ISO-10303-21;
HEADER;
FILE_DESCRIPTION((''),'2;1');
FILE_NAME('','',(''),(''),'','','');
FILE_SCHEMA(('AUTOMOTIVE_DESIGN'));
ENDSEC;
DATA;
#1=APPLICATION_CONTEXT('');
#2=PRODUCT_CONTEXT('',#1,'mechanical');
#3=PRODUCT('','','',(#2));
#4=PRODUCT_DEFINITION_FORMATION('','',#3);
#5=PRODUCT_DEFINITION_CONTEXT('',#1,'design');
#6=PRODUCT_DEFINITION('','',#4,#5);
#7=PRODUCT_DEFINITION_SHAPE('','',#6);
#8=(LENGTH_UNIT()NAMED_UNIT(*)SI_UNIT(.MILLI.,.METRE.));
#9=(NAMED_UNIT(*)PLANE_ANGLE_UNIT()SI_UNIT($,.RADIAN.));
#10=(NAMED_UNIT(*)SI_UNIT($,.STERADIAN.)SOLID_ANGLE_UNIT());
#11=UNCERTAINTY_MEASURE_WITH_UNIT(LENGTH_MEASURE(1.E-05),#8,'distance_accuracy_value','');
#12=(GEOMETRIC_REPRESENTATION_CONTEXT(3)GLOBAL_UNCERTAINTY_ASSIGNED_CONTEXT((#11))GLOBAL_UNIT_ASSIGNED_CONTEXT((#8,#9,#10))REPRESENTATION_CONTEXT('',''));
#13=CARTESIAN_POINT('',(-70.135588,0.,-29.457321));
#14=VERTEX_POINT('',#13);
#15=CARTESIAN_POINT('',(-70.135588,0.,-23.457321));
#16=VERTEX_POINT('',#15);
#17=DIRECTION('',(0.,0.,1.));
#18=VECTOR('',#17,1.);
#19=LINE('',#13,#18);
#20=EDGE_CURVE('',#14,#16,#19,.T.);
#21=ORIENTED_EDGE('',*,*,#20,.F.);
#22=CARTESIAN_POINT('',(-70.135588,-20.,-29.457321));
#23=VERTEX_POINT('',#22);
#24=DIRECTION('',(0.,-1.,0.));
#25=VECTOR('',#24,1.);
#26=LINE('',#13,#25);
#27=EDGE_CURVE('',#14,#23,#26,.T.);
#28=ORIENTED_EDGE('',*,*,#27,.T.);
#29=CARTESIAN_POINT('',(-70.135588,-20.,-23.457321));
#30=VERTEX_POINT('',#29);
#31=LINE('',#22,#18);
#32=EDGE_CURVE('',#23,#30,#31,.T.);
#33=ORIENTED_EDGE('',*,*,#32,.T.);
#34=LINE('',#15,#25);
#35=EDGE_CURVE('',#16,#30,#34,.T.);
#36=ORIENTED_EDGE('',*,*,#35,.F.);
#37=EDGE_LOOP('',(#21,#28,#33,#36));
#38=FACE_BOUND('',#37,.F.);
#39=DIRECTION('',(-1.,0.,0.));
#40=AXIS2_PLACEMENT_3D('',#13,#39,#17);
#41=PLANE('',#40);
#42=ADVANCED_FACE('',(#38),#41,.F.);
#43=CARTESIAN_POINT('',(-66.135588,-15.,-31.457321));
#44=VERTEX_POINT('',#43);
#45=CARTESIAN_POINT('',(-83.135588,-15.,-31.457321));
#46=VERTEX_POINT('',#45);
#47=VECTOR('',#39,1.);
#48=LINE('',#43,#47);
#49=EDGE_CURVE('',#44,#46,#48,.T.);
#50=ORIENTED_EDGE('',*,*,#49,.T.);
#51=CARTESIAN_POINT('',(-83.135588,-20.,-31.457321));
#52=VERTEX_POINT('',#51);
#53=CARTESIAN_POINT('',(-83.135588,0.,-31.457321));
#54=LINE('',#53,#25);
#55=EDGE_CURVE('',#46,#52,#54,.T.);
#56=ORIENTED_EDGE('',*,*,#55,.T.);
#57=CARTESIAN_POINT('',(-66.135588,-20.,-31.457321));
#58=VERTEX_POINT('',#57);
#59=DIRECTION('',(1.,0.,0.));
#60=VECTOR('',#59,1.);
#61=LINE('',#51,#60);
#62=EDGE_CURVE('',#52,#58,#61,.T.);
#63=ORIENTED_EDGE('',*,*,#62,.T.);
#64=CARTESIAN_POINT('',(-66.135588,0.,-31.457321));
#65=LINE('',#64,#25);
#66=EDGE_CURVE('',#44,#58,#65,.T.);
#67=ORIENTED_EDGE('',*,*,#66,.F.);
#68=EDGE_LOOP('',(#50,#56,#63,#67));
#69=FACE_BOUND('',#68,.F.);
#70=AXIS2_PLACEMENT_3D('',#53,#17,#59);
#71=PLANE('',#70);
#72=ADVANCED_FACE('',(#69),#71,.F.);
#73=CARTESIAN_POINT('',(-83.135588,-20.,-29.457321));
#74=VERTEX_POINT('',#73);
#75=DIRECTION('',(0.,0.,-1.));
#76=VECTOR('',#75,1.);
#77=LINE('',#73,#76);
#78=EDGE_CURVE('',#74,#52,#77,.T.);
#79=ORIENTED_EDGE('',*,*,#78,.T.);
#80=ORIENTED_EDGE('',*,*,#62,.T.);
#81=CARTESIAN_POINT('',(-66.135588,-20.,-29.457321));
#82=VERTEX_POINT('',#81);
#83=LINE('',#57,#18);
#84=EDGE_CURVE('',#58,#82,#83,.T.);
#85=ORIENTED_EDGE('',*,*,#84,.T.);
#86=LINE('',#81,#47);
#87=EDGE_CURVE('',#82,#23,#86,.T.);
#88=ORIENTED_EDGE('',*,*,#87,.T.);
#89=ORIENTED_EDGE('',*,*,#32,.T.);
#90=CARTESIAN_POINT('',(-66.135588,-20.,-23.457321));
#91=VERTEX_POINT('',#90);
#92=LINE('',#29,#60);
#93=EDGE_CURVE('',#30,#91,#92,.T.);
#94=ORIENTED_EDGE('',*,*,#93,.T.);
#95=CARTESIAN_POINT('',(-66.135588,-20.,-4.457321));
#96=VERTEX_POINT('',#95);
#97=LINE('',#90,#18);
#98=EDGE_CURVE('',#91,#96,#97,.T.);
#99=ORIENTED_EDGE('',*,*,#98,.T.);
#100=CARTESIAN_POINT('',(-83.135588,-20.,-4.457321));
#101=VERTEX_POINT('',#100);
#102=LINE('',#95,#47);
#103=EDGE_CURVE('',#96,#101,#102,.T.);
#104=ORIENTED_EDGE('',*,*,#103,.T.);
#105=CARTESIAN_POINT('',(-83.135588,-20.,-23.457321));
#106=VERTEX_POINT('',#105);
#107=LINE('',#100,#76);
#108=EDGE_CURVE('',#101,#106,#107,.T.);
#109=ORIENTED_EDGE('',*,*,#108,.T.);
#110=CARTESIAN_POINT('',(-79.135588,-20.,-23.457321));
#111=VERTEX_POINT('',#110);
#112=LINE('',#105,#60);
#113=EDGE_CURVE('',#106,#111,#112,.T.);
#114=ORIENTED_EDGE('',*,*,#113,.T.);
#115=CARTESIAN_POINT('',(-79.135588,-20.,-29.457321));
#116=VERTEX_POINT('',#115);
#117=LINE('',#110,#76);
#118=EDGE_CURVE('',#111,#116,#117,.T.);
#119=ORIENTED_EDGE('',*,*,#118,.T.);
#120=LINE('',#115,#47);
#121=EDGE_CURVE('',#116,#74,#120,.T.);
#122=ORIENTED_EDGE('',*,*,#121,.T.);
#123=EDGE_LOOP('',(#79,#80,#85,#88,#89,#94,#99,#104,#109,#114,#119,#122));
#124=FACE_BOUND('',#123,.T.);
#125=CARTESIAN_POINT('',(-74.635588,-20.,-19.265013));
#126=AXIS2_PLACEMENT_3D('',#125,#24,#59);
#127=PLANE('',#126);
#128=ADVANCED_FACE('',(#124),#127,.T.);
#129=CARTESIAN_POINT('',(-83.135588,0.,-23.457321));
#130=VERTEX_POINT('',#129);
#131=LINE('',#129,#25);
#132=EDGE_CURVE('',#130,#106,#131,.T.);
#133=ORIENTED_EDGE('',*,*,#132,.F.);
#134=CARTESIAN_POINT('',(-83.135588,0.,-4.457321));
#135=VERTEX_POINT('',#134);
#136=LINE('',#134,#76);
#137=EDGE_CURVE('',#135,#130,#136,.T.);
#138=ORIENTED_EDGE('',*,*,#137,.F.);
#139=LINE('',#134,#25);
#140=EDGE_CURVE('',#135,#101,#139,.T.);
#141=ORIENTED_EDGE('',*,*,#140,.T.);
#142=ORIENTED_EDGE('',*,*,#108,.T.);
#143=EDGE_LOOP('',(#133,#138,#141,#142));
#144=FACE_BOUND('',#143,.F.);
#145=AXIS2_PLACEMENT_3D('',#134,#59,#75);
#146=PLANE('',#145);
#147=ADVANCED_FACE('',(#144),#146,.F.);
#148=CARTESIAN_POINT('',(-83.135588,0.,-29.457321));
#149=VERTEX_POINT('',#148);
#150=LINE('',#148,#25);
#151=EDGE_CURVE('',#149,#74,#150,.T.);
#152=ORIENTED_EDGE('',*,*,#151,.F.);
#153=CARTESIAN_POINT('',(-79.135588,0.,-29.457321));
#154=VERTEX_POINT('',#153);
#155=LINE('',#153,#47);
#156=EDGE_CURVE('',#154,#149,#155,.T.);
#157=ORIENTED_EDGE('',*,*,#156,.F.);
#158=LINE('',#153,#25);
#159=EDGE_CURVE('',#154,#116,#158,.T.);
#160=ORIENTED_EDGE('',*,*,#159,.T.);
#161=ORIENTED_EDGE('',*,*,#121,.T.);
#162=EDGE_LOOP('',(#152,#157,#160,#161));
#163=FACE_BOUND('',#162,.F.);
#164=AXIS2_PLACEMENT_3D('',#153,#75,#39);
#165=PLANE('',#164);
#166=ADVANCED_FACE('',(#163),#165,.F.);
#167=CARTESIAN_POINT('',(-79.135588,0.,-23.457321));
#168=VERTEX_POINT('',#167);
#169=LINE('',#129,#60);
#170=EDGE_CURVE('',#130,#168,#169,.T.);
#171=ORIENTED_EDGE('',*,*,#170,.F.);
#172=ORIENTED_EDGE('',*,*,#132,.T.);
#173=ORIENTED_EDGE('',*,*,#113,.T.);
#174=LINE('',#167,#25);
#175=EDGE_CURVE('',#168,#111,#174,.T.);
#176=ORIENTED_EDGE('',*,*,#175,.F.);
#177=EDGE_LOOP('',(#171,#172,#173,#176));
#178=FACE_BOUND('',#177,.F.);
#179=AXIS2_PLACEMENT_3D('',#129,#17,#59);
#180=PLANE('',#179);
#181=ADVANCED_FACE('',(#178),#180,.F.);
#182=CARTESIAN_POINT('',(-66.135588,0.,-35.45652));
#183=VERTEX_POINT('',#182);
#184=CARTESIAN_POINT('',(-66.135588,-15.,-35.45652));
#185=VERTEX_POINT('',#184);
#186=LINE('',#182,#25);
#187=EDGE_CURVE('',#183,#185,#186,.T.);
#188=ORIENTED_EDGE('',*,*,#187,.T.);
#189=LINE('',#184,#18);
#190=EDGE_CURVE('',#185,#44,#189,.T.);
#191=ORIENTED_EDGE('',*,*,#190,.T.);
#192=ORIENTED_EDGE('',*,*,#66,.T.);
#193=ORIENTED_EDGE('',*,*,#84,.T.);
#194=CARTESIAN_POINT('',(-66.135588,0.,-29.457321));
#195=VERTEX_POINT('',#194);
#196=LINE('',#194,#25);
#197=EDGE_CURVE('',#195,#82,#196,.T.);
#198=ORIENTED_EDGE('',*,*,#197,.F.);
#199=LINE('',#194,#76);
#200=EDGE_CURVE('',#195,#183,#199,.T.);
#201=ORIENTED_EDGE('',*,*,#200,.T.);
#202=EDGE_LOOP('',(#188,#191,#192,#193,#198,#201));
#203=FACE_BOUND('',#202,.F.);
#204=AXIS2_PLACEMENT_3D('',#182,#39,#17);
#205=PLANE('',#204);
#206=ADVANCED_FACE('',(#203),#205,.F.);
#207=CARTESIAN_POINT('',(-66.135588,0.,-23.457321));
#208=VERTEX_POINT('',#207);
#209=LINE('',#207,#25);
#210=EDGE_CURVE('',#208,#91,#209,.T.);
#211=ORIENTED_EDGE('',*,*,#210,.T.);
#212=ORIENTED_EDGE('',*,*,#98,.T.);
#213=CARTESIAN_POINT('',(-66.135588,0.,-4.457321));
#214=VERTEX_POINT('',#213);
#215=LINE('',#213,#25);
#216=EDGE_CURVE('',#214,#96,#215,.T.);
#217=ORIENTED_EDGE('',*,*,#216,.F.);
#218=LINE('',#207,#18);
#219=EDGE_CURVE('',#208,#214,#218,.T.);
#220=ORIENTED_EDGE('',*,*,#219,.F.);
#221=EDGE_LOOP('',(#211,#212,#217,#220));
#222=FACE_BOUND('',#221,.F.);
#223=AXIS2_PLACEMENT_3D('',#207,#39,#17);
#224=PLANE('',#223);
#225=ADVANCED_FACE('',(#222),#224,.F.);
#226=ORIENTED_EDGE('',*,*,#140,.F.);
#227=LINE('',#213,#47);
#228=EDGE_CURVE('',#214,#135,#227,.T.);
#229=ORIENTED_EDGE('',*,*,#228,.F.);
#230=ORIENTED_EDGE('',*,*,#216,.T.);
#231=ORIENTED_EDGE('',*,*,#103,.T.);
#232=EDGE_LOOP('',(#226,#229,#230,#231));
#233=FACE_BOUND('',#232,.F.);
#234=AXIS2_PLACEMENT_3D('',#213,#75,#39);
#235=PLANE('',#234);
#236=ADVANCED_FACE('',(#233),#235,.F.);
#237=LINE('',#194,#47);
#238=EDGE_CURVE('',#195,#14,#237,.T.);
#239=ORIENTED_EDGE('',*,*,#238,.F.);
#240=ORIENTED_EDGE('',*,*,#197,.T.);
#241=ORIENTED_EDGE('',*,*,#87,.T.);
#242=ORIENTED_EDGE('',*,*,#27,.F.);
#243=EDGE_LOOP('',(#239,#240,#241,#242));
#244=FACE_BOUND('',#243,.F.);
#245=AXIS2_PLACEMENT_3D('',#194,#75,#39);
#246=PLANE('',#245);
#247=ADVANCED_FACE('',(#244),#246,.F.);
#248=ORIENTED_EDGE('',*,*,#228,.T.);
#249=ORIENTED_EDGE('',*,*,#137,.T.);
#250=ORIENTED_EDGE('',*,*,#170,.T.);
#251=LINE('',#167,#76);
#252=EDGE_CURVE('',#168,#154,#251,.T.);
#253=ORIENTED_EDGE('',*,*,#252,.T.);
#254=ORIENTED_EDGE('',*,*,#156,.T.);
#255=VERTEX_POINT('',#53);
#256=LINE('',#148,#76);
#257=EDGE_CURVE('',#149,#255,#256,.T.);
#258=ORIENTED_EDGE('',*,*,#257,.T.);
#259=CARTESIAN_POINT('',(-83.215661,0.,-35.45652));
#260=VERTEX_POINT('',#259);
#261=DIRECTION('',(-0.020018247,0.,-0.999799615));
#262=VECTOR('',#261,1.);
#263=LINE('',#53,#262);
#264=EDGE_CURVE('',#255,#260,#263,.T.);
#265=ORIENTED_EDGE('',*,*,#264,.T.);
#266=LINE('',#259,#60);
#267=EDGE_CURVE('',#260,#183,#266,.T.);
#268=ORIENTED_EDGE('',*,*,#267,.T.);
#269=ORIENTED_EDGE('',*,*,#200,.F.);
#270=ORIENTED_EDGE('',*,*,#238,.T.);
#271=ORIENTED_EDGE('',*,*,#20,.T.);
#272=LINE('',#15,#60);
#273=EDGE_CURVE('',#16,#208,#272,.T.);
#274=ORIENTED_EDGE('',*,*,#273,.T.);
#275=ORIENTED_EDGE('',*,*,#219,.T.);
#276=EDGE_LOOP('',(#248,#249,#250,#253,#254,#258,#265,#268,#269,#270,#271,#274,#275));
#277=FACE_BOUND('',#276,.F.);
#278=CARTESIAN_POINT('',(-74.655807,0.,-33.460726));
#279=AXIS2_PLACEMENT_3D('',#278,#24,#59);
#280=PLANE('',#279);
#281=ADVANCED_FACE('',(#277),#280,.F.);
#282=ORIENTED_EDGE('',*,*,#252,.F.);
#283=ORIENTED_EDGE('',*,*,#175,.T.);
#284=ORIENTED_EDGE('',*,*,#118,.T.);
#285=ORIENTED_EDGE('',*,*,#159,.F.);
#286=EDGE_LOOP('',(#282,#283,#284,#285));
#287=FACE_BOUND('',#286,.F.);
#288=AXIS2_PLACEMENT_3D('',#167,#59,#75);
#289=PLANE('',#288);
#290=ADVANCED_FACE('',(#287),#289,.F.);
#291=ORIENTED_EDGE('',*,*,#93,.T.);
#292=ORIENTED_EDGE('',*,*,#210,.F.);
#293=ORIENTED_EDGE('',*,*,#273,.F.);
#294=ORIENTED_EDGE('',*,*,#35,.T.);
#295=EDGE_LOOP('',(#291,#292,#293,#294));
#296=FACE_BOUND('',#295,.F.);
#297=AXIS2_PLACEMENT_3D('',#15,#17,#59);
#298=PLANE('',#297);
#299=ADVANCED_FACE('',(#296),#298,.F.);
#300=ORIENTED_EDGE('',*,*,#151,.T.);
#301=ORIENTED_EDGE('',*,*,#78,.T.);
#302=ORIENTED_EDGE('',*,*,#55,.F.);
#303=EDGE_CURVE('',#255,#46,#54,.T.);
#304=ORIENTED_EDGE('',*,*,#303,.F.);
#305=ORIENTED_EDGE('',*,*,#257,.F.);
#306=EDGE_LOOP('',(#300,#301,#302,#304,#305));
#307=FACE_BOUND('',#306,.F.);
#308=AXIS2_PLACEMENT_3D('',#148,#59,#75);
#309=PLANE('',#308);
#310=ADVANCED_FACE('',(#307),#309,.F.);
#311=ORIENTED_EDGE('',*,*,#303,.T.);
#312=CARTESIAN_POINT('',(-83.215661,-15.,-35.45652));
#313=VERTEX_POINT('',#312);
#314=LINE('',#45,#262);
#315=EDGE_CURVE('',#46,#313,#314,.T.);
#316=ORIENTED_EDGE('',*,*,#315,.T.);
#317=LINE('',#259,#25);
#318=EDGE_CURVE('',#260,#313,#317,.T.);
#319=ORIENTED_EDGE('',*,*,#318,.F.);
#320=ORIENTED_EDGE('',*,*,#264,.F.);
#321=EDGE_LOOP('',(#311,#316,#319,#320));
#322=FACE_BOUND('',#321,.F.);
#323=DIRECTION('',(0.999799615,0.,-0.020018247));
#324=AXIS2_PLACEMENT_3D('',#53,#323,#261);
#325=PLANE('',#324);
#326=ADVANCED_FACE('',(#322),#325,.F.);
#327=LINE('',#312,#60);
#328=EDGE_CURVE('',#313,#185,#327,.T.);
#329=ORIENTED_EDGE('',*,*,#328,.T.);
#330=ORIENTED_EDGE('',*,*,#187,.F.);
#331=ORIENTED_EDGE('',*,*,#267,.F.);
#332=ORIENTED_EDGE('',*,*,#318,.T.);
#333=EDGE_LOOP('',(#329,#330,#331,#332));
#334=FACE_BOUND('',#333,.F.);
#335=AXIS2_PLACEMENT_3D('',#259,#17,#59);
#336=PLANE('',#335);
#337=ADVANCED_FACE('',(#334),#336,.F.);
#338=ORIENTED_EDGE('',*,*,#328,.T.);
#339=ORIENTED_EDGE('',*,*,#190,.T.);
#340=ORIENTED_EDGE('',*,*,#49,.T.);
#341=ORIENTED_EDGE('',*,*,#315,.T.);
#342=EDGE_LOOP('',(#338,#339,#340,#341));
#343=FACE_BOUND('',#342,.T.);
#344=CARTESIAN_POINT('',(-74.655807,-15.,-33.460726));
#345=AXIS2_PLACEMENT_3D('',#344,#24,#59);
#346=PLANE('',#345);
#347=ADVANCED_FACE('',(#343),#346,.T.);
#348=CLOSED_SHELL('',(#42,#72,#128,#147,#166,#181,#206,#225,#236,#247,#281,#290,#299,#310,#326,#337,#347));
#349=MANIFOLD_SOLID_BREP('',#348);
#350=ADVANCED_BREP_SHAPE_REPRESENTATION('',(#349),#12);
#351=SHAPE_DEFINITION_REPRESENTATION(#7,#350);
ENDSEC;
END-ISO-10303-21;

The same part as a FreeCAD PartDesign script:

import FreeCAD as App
import Part
import Sketcher

V = App.Vector
Q = App.Units.Quantity

doc = App.newDocument("Part")
params = doc.addObject("Spreadsheet::Sheet", "Params")
for row, (alias, value) in enumerate([
    ("sketch1_width", "17 mm"),
    ("sketch1_width2", "4 mm"),
    ("sketch1_height", "19 mm"),
    ("sketch1_height2", "6 mm"),
    ("sketch1_height3", "2 mm"),
    ("pad1_length", "20 mm"),
    ("sketch2_width", "17 mm"),
    ("sketch2_length", "4.000001 mm"),
    ("pad2_length", "15 mm"),
], start=1):
    params.set(f"A{row}", alias)
    params.set(f"B{row}", "=" + value)
    params.setAlias(f"B{row}", alias)

body = doc.addObject("PartDesign::Body", "Body")

sketch1 = body.newObject("Sketcher::SketchObject", "Sketch")
sketch1.AttachmentSupport = (doc.getObject("XZ_Plane"), [""])
sketch1.MapMode = "FlatFace"
sketch1.addGeometry(Part.LineSegment(V(-66.1, -4.5, 0), V(-83.1, -4.5, 0)), False)
sketch1.addGeometry(Part.LineSegment(V(-83.1, -4.5, 0), V(-83.1, -23.5, 0)), False)
sketch1.addGeometry(Part.LineSegment(V(-83.1, -23.5, 0), V(-79.1, -23.5, 0)), False)
sketch1.addGeometry(Part.LineSegment(V(-79.1, -23.5, 0), V(-79.1, -29.5, 0)), False)
sketch1.addGeometry(Part.LineSegment(V(-79.1, -29.5, 0), V(-83.1, -29.5, 0)), False)
sketch1.addGeometry(Part.LineSegment(V(-83.1, -29.5, 0), V(-83.1, -31.5, 0)), False)
sketch1.addGeometry(Part.LineSegment(V(-83.1, -31.5, 0), V(-66.1, -31.5, 0)), False)
sketch1.addGeometry(Part.LineSegment(V(-66.1, -31.5, 0), V(-66.1, -29.5, 0)), False)
sketch1.addGeometry(Part.LineSegment(V(-66.1, -29.5, 0), V(-70.1, -29.5, 0)), False)
sketch1.addGeometry(Part.LineSegment(V(-70.1, -29.5, 0), V(-70.1, -23.5, 0)), False)
sketch1.addGeometry(Part.LineSegment(V(-70.1, -23.5, 0), V(-66.1, -23.5, 0)), False)
sketch1.addGeometry(Part.LineSegment(V(-66.1, -23.5, 0), V(-66.1, -4.5, 0)), False)
sketch1.addConstraint(Sketcher.Constraint("Coincident", 0, 2, 1, 1))
sketch1.addConstraint(Sketcher.Constraint("Coincident", 1, 2, 2, 1))
sketch1.addConstraint(Sketcher.Constraint("Coincident", 2, 2, 3, 1))
sketch1.addConstraint(Sketcher.Constraint("Coincident", 3, 2, 4, 1))
sketch1.addConstraint(Sketcher.Constraint("Coincident", 4, 2, 5, 1))
sketch1.addConstraint(Sketcher.Constraint("Coincident", 5, 2, 6, 1))
sketch1.addConstraint(Sketcher.Constraint("Coincident", 6, 2, 7, 1))
sketch1.addConstraint(Sketcher.Constraint("Coincident", 7, 2, 8, 1))
sketch1.addConstraint(Sketcher.Constraint("Coincident", 8, 2, 9, 1))
sketch1.addConstraint(Sketcher.Constraint("Coincident", 9, 2, 10, 1))
sketch1.addConstraint(Sketcher.Constraint("Coincident", 10, 2, 11, 1))
sketch1.addConstraint(Sketcher.Constraint("Coincident", 11, 2, 0, 1))
sketch1.addConstraint(Sketcher.Constraint("Horizontal", 0))
sketch1.addConstraint(Sketcher.Constraint("Vertical", 1))
sketch1.addConstraint(Sketcher.Constraint("Horizontal", 2))
sketch1.addConstraint(Sketcher.Constraint("Vertical", 3))
sketch1.addConstraint(Sketcher.Constraint("Horizontal", 4))
sketch1.addConstraint(Sketcher.Constraint("Vertical", 5))
sketch1.addConstraint(Sketcher.Constraint("Horizontal", 6))
sketch1.addConstraint(Sketcher.Constraint("Vertical", 7))
sketch1.addConstraint(Sketcher.Constraint("Horizontal", 8))
sketch1.addConstraint(Sketcher.Constraint("Vertical", 9))
sketch1.addConstraint(Sketcher.Constraint("Horizontal", 10))
sketch1.addConstraint(Sketcher.Constraint("Vertical", 11))
sketch1.addConstraint(Sketcher.Constraint("Horizontal", 4, 2, 7, 2))
sketch1.addConstraint(Sketcher.Constraint("Horizontal", 2, 2, 9, 2))
sketch1.addConstraint(Sketcher.Constraint("Vertical", 1, 2, 4, 2))
sketch1.addConstraint(Sketcher.Constraint("Vertical", 7, 2, 10, 2))
sketch1.addConstraint(Sketcher.Constraint("Equal", 4, 8))
sketch1.addConstraint(Sketcher.Constraint("DistanceX", 0, 2, 0, 1, Q("17 mm")))
sketch1.addConstraint(Sketcher.Constraint("DistanceX", 2, 1, 2, 2, Q("4 mm")))
sketch1.addConstraint(Sketcher.Constraint("DistanceY", 1, 2, 1, 1, Q("19 mm")))
sketch1.addConstraint(Sketcher.Constraint("DistanceY", 3, 2, 3, 1, Q("6 mm")))
sketch1.addConstraint(Sketcher.Constraint("DistanceY", 5, 2, 5, 1, Q("2 mm")))
sketch1.addConstraint(Sketcher.Constraint("DistanceX", 0, 2, -1, 1, Q("83.135588 mm")))
sketch1.addConstraint(Sketcher.Constraint("DistanceY", 0, 2, -1, 1, Q("4.457321 mm")))
sketch1.setExpression("Constraints[29]", "Params.sketch1_width")
sketch1.setExpression("Constraints[30]", "Params.sketch1_width2")
sketch1.setExpression("Constraints[31]", "Params.sketch1_height")
sketch1.setExpression("Constraints[32]", "Params.sketch1_height2")
sketch1.setExpression("Constraints[33]", "Params.sketch1_height3")
pad1 = body.newObject("PartDesign::Pad", "Pad")
pad1.Profile = sketch1
pad1.setExpression("Length", "Params.pad1_length")

sketch2 = body.newObject("Sketcher::SketchObject", "Sketch001")
sketch2.AttachmentSupport = (doc.getObject("XZ_Plane"), [""])
sketch2.MapMode = "FlatFace"
sketch2.addGeometry(Part.LineSegment(V(-66.135588, -31.457321, 0), V(-83.135588, -31.457321, 0)), False)
sketch2.addGeometry(Part.LineSegment(V(-83.135588, -31.457321, 0), V(-83.215661, -35.45652, 0)), False)
sketch2.addGeometry(Part.LineSegment(V(-83.215661, -35.45652, 0), V(-66.135588, -35.45652, 0)), False)
sketch2.addGeometry(Part.LineSegment(V(-66.135588, -35.45652, 0), V(-66.135588, -31.457321, 0)), False)
sketch2.addConstraint(Sketcher.Constraint("Coincident", 0, 2, 1, 1))
sketch2.addConstraint(Sketcher.Constraint("Coincident", 1, 2, 2, 1))
sketch2.addConstraint(Sketcher.Constraint("Coincident", 2, 2, 3, 1))
sketch2.addConstraint(Sketcher.Constraint("Coincident", 3, 2, 0, 1))
sketch2.addConstraint(Sketcher.Constraint("Horizontal", 0))
sketch2.addConstraint(Sketcher.Constraint("Horizontal", 2))
sketch2.addConstraint(Sketcher.Constraint("Vertical", 3))
sketch2.addConstraint(Sketcher.Constraint("DistanceX", 0, 2, 0, 1, Q("17 mm")))
sketch2.addConstraint(Sketcher.Constraint("Distance", 1, Q("4.000001 mm")))
sketch2.addConstraint(Sketcher.Constraint("DistanceY", 3, 1, 3, 2, Q("3.999199 mm")))
sketch2.addConstraint(Sketcher.Constraint("DistanceX", 0, 2, -1, 1, Q("83.135588 mm")))
sketch2.addConstraint(Sketcher.Constraint("DistanceY", 0, 2, -1, 1, Q("31.457321 mm")))
sketch2.setExpression("Constraints[7]", "Params.sketch2_width")
sketch2.setExpression("Constraints[8]", "Params.sketch2_length")
pad2 = body.newObject("PartDesign::Pad", "Pad001")
pad2.Profile = sketch2
pad2.setExpression("Length", "Params.pad2_length")

doc.recompute()
